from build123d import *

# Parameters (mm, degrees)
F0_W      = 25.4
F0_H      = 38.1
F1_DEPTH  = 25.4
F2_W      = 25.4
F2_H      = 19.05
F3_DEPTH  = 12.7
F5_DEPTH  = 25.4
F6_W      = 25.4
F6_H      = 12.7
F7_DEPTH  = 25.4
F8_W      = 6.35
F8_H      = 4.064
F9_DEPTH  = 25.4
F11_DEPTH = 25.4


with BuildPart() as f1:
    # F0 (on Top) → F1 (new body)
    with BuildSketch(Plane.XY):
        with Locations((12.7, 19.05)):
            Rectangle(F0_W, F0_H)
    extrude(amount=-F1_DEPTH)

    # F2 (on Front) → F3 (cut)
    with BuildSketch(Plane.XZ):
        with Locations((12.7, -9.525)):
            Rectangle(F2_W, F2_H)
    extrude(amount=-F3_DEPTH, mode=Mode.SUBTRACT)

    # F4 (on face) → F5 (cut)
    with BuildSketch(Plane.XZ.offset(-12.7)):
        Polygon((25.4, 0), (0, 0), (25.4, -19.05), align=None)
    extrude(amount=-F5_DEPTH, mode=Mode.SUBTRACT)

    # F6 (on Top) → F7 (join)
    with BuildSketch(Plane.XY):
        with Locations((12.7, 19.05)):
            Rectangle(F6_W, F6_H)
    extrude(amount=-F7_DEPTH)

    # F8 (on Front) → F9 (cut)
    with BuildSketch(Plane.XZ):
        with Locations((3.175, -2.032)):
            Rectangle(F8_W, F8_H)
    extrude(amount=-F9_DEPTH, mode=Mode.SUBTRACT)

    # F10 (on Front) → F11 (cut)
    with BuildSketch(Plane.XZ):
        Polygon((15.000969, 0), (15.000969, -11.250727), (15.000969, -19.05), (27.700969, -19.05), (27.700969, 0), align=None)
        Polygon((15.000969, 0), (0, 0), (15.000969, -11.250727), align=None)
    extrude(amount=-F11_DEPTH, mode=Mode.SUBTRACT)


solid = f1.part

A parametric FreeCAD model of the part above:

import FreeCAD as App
import Part
import Sketcher
Q = App.Units.Quantity

doc = App.newDocument("Part")
body = doc.addObject("PartDesign::Body", "Body")

sketch1 = doc.addObject("Sketcher::SketchObject", "Sketch")
body.addObject(sketch1)
sketch1.AttachmentSupport = (doc.XY_Plane, [""])
sketch1.MapMode = "FlatFace"
sketch1.addGeometry([
    Part.LineSegment(App.Vector(0, 38, 0), App.Vector(0, 0, 0)),
    Part.LineSegment(App.Vector(0, 0, 0), App.Vector(25, 0, 0)),
    Part.LineSegment(App.Vector(25, 0, 0), App.Vector(25, 38, 0)),
    Part.LineSegment(App.Vector(25, 38, 0), App.Vector(0, 38, 0)),
], False)
sketch1.addConstraint([
    Sketcher.Constraint("Coincident", 0, 2, 1, 1),
    Sketcher.Constraint("Coincident", 1, 2, 2, 1),
    Sketcher.Constraint("Coincident", 2, 2, 3, 1),
    Sketcher.Constraint("Coincident", 3, 2, 0, 1),
    Sketcher.Constraint("Vertical", 0),
    Sketcher.Constraint("Horizontal", 1),
    Sketcher.Constraint("Vertical", 2),
    Sketcher.Constraint("Horizontal", 3),
    Sketcher.Constraint("Coincident", 0, 2, -1, 1),
    Sketcher.Constraint("DistanceX", 1, 1, 1, 2, Q("1 in")),
    Sketcher.Constraint("DistanceY", 0, 2, 0, 1, Q("1.5 in")),
])
pad1 = doc.addObject("PartDesign::Pad", "Pad")
body.addObject(pad1)
pad1.Profile = sketch1
pad1.Length = Q("1 in")
pad1.Reversed = True

sketch2 = doc.addObject("Sketcher::SketchObject", "Sketch001")
body.addObject(sketch2)
sketch2.AttachmentSupport = (doc.XZ_Plane, [""])
sketch2.MapMode = "FlatFace"
sketch2.addGeometry([
    Part.LineSegment(App.Vector(0, 0, 0), App.Vector(0, -19, 0)),
    Part.LineSegment(App.Vector(0, -19, 0), App.Vector(25, -19, 0)),
    Part.LineSegment(App.Vector(25, -19, 0), App.Vector(25, 0, 0)),
    Part.LineSegment(App.Vector(25, 0, 0), App.Vector(0, 0, 0)),
], False)
sketch2.addConstraint([
    Sketcher.Constraint("Coincident", 0, 2, 1, 1),
    Sketcher.Constraint("Coincident", 1, 2, 2, 1),
    Sketcher.Constraint("Coincident", 2, 2, 3, 1),
    Sketcher.Constraint("Coincident", 3, 2, 0, 1),
    Sketcher.Constraint("Vertical", 0),
    Sketcher.Constraint("Horizontal", 1),
    Sketcher.Constraint("Vertical", 2),
    Sketcher.Constraint("Horizontal", 3),
    Sketcher.Constraint("Coincident", 3, 2, -1, 1),
    Sketcher.Constraint("DistanceX", 1, 1, 1, 2, Q("1 in")),
    Sketcher.Constraint("DistanceY", 0, 2, 0, 1, Q("0.75 in")),
])
pocket1 = doc.addObject("PartDesign::Pocket", "Pocket")
body.addObject(pocket1)
pocket1.Profile = sketch2
pocket1.Length = Q("0.5 in")

sketch3 = doc.addObject("Sketcher::SketchObject", "Sketch002")
body.addObject(sketch3)
sketch3.AttachmentSupport = (doc.XZ_Plane, [""])
sketch3.MapMode = "FlatFace"
sketch3.AttachmentOffset = App.Placement(App.Vector(0, 0, -0.5 * 25.4), App.Rotation())
sketch3.addGeometry([
    Part.LineSegment(App.Vector(25, 0, 0), App.Vector(0, 0, 0)),
    Part.LineSegment(App.Vector(0, 0, 0), App.Vector(25, -19, 0)),
    Part.LineSegment(App.Vector(25, -19, 0), App.Vector(25, 0, 0)),
], False)
sketch3.addConstraint([
    Sketcher.Constraint("Coincident", 0, 2, 1, 1),
    Sketcher.Constraint("Coincident", 1, 2, 2, 1),
    Sketcher.Constraint("Coincident", 2, 2, 0, 1),
    Sketcher.Constraint("Horizontal", 0),
    Sketcher.Constraint("Vertical", 2),
    Sketcher.Constraint("Coincident", 0, 2, -1, 1),
    Sketcher.Constraint("DistanceX", 0, 2, 0, 1, Q("1 in")),
    Sketcher.Constraint("DistanceY", 2, 1, 2, 2, Q("0.75 in")),
])
pocket2 = doc.addObject("PartDesign::Pocket", "Pocket001")
body.addObject(pocket2)
pocket2.Profile = sketch3
pocket2.Length = Q("1 in")

sketch4 = doc.addObject("Sketcher::SketchObject", "Sketch003")
body.addObject(sketch4)
sketch4.AttachmentSupport = (doc.XY_Plane, [""])
sketch4.MapMode = "FlatFace"
sketch4.addGeometry([
    Part.LineSegment(App.Vector(0, 25, 0), App.Vector(0, 13, 0)),
    Part.LineSegment(App.Vector(0, 13, 0), App.Vector(25, 13, 0)),
    Part.LineSegment(App.Vector(25, 13, 0), App.Vector(25, 25, 0)),
    Part.LineSegment(App.Vector(25, 25, 0), App.Vector(0, 25, 0)),
], False)
sketch4.addConstraint([
    Sketcher.Constraint("Coincident", 0, 2, 1, 1),
    Sketcher.Constraint("Coincident", 1, 2, 2, 1),
    Sketcher.Constraint("Coincident", 2, 2, 3, 1),
    Sketcher.Constraint("Coincident", 3, 2, 0, 1),
    Sketcher.Constraint("Vertical", 0),
    Sketcher.Constraint("Horizontal", 1),
    Sketcher.Constraint("Vertical", 2),
    Sketcher.Constraint("Horizontal", 3),
    Sketcher.Constraint("PointOnObject", 0, 2, -2),
    Sketcher.Constraint("DistanceX", 1, 1, 1, 2, Q("1 in")),
    Sketcher.Constraint("DistanceY", 0, 2, 0, 1, Q("0.5 in")),
    Sketcher.Constraint("DistanceY", -1, 1, 2, 2, Q("1 in")),
])
pad2 = doc.addObject("PartDesign::Pad", "Pad001")
body.addObject(pad2)
pad2.Profile = sketch4
pad2.Length = Q("1 in")
pad2.Reversed = True

sketch5 = doc.addObject("Sketcher::SketchObject", "Sketch004")
body.addObject(sketch5)
sketch5.AttachmentSupport = (doc.XZ_Plane, [""])
sketch5.MapMode = "FlatFace"
sketch5.addGeometry([
    Part.LineSegment(App.Vector(0, 0, 0), App.Vector(0, -4.1, 0)),
    Part.LineSegment(App.Vector(0, -4.1, 0), App.Vector(6.3, -4.1, 0)),
    Part.LineSegment(App.Vector(6.3, -4.1, 0), App.Vector(6.3, 0, 0)),
    Part.LineSegment(App.Vector(6.3, 0, 0), App.Vector(0, 0, 0)),
], False)
sketch5.addConstraint([
    Sketcher.Constraint("Coincident", 0, 2, 1, 1),
    Sketcher.Constraint("Coincident", 1, 2, 2, 1),
    Sketcher.Constraint("Coincident", 2, 2, 3, 1),
    Sketcher.Constraint("Coincident", 3, 2, 0, 1),
    Sketcher.Constraint("Vertical", 0),
    Sketcher.Constraint("Horizontal", 1),
    Sketcher.Constraint("Vertical", 2),
    Sketcher.Constraint("Horizontal", 3),
    Sketcher.Constraint("Coincident", 3, 2, -1, 1),
    Sketcher.Constraint("DistanceX", 1, 1, 1, 2, Q("0.25 in")),
    Sketcher.Constraint("DistanceY", 0, 2, 0, 1, Q("0.16 in")),
])
pocket3 = doc.addObject("PartDesign::Pocket", "Pocket002")
body.addObject(pocket3)
pocket3.Profile = sketch5
pocket3.Length = Q("1 in")

sketch6 = doc.addObject("Sketcher::SketchObject", "Sketch005")
body.addObject(sketch6)
sketch6.AttachmentSupport = (doc.XZ_Plane, [""])
sketch6.MapMode = "FlatFace"
sketch6.addGeometry([
    Part.LineSegment(App.Vector(15, -11, 0), App.Vector(15, -19, 0)),
    Part.LineSegment(App.Vector(15, -19, 0), App.Vector(28, -19, 0)),
    Part.LineSegment(App.Vector(28, -19, 0), App.Vector(28, 0, 0)),
    Part.LineSegment(App.Vector(28, 0, 0), App.Vector(0, 0, 0)),
    Part.LineSegment(App.Vector(0, 0, 0), App.Vector(15, -11, 0)),
], False)
sketch6.addConstraint([
    Sketcher.Constraint("Coincident", 0, 2, 1, 1),
    Sketcher.Constraint("Coincident", 1, 2, 2, 1),
    Sketcher.Constraint("Coincident", 2, 2, 3, 1),
    Sketcher.Constraint("Coincident", 3, 2, 4, 1),
    Sketcher.Constraint("Coincident", 4, 2, 0, 1),
    Sketcher.Constraint("Vertical", 0),
    Sketcher.Constraint("Horizontal", 1),
    Sketcher.Constraint("Vertical", 2),
    Sketcher.Constraint("Horizontal", 3),
    Sketcher.Constraint("Coincident", 3, 2, -1, 1),
    Sketcher.Constraint("DistanceX", 1, 1, 1, 2, Q("0.5 in")),
    Sketcher.Constraint("DistanceY", 2, 1, 2, 2, Q("0.75 in")),
    Sketcher.Constraint("DistanceX", 3, 2, 3, 1, 27.700969),
    Sketcher.Constraint("Distance", 4, 18.751211),
])
pocket4 = doc.addObject("PartDesign::Pocket", "Pocket003")
body.addObject(pocket4)
pocket4.Profile = sketch6
pocket4.Length = Q("1 in")

doc.recompute()
